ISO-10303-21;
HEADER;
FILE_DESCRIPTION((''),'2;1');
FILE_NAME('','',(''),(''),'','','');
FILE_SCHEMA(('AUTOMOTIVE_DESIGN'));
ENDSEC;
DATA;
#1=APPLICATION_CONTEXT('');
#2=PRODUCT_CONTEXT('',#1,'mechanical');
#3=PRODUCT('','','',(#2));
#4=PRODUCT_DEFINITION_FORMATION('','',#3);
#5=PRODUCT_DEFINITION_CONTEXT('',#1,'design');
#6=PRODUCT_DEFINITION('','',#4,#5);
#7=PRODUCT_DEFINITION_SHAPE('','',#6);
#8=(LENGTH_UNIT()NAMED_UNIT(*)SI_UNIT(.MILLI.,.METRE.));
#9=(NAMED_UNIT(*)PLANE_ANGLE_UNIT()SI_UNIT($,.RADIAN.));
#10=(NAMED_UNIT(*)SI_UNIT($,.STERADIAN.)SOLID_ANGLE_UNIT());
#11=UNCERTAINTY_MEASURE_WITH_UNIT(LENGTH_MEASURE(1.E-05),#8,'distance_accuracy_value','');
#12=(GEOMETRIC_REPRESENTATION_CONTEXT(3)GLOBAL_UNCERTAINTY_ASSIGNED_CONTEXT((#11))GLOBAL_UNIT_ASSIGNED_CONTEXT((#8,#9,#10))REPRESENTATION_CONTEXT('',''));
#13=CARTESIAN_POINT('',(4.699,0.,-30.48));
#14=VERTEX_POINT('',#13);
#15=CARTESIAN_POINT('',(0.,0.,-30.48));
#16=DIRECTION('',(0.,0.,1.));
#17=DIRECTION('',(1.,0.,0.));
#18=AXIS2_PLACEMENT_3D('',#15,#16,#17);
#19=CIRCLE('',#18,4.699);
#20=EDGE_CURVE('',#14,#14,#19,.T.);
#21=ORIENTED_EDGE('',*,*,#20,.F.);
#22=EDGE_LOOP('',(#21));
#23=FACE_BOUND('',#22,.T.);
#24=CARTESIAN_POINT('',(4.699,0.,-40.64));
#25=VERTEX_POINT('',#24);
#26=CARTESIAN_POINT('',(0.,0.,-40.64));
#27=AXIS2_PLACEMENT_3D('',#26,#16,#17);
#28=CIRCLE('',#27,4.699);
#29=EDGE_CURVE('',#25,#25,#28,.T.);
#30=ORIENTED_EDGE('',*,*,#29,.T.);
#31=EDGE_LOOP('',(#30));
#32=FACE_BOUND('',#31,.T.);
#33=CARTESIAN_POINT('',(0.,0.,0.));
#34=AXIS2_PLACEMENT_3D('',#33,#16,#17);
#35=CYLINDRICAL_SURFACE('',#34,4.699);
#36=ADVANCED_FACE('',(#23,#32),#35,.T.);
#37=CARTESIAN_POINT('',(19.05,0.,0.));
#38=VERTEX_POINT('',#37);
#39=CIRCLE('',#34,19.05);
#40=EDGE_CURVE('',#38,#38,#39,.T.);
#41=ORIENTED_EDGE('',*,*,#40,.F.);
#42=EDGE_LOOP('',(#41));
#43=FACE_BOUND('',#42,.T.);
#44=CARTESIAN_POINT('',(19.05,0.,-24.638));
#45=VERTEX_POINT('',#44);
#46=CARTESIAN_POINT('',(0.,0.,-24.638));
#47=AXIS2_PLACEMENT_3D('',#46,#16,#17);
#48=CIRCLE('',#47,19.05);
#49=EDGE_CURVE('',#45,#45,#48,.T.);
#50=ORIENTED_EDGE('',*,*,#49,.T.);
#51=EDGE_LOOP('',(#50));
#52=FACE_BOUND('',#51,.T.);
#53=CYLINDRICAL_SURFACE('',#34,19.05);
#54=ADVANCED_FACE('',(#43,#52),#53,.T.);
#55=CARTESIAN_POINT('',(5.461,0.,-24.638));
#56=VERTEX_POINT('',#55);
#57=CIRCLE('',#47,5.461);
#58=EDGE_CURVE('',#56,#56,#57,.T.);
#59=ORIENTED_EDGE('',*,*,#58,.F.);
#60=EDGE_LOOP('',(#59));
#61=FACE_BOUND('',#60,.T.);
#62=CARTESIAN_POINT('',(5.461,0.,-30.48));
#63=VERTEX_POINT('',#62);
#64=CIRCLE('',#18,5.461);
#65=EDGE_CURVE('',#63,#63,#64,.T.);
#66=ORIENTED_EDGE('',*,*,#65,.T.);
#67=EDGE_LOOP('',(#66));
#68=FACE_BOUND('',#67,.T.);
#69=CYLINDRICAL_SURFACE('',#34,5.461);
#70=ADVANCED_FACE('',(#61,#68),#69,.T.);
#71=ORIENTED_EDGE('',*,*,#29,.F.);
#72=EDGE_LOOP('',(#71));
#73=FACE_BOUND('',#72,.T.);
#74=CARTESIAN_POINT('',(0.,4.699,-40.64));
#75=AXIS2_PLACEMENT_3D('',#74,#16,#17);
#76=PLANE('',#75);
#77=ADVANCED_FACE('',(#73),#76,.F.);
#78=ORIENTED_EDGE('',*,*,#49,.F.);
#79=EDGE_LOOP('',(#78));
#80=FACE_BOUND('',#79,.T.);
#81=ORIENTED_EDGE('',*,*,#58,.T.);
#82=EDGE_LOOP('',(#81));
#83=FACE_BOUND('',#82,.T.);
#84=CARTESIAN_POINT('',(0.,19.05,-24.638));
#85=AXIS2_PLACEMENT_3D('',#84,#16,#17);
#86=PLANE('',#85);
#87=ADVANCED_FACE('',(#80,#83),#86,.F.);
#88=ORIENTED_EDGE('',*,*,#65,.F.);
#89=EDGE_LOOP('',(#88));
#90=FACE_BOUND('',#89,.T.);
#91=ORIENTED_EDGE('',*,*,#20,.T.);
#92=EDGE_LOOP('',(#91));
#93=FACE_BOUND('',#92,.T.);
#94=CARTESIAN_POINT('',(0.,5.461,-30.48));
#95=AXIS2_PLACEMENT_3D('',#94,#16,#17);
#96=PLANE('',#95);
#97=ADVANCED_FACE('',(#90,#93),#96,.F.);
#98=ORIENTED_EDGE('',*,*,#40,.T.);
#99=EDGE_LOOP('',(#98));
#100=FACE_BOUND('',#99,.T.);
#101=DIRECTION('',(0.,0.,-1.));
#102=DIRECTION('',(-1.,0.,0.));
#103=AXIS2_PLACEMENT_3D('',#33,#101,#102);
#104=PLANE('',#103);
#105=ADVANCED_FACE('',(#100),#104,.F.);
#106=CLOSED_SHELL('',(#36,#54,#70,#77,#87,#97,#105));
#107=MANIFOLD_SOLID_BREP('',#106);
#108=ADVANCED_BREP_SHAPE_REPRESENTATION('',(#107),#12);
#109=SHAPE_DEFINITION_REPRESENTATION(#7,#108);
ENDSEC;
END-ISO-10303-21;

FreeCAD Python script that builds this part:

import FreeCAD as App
import Part
import Sketcher
from FreeCAD import Vector
Q = App.Units.Quantity


def add_polygon(sketch, points):
    """Adds a closed chain of lines whose ends are joined by coincident constraints."""
    first, n = sketch.GeometryCount, len(points)
    for a, b in zip(points, points[1:] + points[:1]):
        sketch.addGeometry(Part.LineSegment(App.Vector(*a, 0), App.Vector(*b, 0)), False)
    for i in range(n):
        sketch.addConstraint(Sketcher.Constraint("Coincident", first + i, 2, first + (i + 1) % n, 1))

doc = App.newDocument("Part")
body = doc.addObject("PartDesign::Body", "Body")

# Sketch on YZ plane
sketch1 = body.newObject("Sketcher::SketchObject", "Sketch")
sketch1.AttachmentSupport = (doc.getObject("YZ_Plane"), [""])
sketch1.MapMode = "FlatFace"
add_polygon(sketch1, [(19.1, 0), (0, 0), (0, -40.6), (4.7, -40.6), (4.7, -30.5), (5.5, -30.5), (5.5, -24.6), (19.1, -24.6)])  # lines 0-7
sketch1.addConstraint(Sketcher.Constraint("Horizontal", 0))
sketch1.addConstraint(Sketcher.Constraint("Vertical", 1))
sketch1.addConstraint(Sketcher.Constraint("Horizontal", 2))
sketch1.addConstraint(Sketcher.Constraint("Vertical", 3))
sketch1.addConstraint(Sketcher.Constraint("Horizontal", 4))
sketch1.addConstraint(Sketcher.Constraint("Vertical", 5))
sketch1.addConstraint(Sketcher.Constraint("Horizontal", 6))
sketch1.addConstraint(Sketcher.Constraint("Vertical", 7))
sketch1.addConstraint(Sketcher.Constraint("Coincident", 0, 2, -1, 1))
sketch1.addConstraint(Sketcher.Constraint("DistanceY", 1, 2, 1, 1, Q("1.6 in")))
sketch1.addConstraint(Sketcher.Constraint("DistanceY", 3, 1, 3, 2, Q("0.4 in")))
sketch1.addConstraint(Sketcher.Constraint("DistanceX", 0, 2, 0, 1, Q("0.75 in")))
sketch1.addConstraint(Sketcher.Constraint("DistanceX", 4, 1, 4, 2, Q("0.03 in")))
sketch1.addConstraint(Sketcher.Constraint("DistanceY", 5, 1, 5, 2, Q("0.23 in")))
sketch1.addConstraint(Sketcher.Constraint("DistanceX", 2, 1, 2, 2, Q("0.185 in")))
revolution = body.newObject("PartDesign::Revolution", "Revolution")
revolution.Profile = sketch1
revolution.ReferenceAxis = (sketch1, ["V_Axis"])
revolution.Angle = 360

doc.recompute()
